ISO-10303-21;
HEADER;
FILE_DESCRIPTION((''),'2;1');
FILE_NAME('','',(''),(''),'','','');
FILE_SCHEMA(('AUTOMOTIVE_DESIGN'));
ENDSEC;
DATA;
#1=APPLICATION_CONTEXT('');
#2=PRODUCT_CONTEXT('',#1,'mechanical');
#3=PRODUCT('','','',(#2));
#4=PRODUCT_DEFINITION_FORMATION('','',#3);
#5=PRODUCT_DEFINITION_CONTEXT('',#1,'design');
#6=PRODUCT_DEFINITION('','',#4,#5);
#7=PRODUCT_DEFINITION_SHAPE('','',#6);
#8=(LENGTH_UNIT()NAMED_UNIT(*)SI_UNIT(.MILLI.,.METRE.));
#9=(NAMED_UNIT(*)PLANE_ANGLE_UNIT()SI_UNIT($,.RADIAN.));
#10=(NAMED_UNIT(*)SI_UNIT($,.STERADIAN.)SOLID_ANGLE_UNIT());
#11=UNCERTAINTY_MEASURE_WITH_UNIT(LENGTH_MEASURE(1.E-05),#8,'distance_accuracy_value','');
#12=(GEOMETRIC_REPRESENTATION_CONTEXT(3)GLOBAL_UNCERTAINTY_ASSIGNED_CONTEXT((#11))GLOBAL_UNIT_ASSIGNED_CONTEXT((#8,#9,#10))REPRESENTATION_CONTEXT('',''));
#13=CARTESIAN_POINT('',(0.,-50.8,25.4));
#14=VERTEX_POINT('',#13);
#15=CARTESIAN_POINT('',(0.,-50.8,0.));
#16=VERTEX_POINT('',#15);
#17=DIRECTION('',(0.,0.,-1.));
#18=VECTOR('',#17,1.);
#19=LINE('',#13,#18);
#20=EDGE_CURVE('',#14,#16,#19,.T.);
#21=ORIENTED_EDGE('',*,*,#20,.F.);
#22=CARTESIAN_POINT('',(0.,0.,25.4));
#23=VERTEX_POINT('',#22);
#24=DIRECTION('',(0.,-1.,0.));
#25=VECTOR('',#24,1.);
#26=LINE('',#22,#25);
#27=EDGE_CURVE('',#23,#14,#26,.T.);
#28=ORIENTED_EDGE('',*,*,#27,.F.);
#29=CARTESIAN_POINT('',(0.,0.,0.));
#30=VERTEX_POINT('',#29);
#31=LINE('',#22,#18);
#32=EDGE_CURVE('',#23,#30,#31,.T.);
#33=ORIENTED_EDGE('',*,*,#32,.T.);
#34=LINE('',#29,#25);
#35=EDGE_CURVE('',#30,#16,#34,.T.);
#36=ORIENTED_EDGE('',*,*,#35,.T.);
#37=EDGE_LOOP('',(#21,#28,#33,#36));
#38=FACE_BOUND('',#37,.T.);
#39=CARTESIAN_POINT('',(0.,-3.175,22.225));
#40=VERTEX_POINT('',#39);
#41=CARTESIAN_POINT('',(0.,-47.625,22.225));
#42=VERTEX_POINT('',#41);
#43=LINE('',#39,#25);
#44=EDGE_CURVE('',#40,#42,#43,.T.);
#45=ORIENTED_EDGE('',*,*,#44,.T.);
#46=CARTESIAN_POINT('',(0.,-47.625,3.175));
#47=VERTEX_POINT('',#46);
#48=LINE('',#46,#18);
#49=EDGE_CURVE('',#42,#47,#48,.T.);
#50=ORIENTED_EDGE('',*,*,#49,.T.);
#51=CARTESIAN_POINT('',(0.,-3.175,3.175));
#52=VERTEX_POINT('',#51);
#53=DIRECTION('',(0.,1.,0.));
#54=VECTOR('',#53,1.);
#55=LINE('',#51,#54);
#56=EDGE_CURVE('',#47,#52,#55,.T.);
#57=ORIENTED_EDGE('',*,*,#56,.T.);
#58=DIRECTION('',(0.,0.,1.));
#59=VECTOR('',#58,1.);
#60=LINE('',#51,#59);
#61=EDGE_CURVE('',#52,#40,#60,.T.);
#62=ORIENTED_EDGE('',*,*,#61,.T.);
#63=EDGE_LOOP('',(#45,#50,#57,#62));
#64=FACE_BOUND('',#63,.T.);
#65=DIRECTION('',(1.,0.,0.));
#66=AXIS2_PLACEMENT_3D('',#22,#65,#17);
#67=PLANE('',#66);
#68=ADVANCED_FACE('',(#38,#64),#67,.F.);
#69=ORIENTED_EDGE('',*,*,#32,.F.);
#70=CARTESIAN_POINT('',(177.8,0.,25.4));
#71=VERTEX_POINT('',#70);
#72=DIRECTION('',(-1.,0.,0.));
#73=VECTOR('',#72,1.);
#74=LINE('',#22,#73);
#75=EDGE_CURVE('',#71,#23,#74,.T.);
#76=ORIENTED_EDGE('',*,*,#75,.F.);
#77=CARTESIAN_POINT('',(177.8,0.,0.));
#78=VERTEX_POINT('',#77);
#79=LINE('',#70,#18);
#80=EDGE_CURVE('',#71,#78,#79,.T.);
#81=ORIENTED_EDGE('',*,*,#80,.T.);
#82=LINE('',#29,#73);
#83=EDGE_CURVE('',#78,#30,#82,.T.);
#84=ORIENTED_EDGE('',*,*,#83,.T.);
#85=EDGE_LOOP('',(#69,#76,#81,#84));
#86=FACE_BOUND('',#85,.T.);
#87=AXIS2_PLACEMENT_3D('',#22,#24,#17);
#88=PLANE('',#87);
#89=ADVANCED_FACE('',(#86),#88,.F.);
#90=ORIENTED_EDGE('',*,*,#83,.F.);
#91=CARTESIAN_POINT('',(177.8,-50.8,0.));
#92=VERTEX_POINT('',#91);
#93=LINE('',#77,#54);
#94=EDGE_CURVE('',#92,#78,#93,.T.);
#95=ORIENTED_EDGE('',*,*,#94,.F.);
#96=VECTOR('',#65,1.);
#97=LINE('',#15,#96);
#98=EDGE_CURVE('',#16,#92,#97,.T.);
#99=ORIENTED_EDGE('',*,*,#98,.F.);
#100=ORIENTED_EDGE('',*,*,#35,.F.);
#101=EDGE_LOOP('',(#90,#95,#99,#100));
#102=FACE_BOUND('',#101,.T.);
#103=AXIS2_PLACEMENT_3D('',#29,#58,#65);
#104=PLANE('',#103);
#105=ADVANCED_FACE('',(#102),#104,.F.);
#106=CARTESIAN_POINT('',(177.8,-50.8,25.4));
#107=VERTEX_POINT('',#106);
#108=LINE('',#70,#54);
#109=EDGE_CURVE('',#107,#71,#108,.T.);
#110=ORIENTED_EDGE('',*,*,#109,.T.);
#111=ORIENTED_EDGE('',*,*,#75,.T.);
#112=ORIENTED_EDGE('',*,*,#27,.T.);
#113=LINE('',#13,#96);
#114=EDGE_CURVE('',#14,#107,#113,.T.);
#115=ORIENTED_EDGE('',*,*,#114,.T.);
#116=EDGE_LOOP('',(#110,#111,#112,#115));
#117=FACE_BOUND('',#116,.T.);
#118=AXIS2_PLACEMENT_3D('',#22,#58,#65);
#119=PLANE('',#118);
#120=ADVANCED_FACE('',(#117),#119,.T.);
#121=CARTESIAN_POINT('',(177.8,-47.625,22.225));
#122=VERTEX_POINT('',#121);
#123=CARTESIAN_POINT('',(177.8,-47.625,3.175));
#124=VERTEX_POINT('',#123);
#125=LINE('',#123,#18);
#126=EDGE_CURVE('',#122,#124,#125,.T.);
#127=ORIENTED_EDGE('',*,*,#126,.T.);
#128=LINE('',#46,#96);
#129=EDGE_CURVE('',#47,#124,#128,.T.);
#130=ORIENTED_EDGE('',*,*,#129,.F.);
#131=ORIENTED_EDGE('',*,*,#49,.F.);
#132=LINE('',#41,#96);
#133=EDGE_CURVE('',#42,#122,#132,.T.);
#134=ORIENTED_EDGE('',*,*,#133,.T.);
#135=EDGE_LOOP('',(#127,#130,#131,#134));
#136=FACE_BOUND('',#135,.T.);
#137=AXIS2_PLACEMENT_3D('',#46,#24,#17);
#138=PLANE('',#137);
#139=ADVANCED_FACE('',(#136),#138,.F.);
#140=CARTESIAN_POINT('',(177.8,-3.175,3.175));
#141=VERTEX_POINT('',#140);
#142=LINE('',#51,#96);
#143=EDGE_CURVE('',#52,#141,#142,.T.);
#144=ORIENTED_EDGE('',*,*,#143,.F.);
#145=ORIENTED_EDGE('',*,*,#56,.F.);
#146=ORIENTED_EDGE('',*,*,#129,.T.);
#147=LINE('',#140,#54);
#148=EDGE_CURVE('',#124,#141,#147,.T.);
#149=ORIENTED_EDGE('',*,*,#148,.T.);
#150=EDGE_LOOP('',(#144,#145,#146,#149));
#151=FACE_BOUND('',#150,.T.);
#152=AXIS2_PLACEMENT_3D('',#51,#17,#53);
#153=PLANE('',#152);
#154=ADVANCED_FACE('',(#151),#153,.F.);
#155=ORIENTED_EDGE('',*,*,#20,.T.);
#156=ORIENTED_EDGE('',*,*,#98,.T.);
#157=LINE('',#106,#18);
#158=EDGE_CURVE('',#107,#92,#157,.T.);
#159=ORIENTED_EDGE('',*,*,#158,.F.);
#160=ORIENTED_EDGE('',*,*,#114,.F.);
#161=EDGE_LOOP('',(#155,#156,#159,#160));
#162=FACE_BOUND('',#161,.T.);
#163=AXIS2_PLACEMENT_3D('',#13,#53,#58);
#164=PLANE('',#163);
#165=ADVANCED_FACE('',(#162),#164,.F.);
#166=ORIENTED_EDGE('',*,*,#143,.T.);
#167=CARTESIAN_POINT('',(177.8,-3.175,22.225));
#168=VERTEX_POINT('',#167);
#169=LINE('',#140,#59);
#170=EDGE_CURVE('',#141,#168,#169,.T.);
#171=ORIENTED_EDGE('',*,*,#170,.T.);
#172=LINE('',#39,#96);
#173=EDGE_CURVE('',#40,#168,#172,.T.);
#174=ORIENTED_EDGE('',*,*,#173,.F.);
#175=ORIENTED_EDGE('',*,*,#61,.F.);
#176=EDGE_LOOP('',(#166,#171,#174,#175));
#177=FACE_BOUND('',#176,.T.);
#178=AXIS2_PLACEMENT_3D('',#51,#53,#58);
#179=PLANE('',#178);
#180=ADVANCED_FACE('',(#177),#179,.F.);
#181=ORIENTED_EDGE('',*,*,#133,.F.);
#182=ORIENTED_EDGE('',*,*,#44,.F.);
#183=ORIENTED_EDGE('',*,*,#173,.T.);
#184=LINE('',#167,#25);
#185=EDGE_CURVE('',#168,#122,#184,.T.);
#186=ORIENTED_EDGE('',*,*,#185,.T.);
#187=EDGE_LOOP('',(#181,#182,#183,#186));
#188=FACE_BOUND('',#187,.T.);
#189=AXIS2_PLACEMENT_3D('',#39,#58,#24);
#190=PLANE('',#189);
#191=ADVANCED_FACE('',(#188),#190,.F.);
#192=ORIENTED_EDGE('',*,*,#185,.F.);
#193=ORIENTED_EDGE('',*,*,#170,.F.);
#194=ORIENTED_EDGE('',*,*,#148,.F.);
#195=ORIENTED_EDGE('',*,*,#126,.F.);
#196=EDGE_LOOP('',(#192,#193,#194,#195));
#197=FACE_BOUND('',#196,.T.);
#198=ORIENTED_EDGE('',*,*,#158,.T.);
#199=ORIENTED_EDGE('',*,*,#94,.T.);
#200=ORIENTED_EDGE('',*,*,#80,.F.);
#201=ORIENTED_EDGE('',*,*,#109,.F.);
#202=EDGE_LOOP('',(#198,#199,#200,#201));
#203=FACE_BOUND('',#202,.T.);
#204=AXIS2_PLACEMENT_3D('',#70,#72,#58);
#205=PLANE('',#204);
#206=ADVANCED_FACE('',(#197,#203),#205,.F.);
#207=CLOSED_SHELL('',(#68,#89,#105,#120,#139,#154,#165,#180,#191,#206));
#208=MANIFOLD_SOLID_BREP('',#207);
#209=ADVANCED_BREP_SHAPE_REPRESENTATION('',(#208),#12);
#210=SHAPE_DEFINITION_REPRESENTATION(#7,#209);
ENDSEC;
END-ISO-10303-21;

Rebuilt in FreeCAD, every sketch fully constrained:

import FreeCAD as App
import Part
import Sketcher

V = App.Vector
Q = App.Units.Quantity

doc = App.newDocument("Part")
params = doc.addObject("Spreadsheet::Sheet", "Params")
for row, (alias, value) in enumerate([
    ("sketch1_width", "7 in"),
    ("sketch1_height", "2 in"),
    ("pad1_length", "1 in"),
    ("sketch2_width", "1.75 in"),
    ("sketch2_height", "0.75 in"),
], start=1):
    params.set(f"A{row}", alias)
    params.set(f"B{row}", "=" + value)
    params.setAlias(f"B{row}", alias)

body = doc.addObject("PartDesign::Body", "Body")

sketch1 = doc.addObject("Sketcher::SketchObject", "Sketch")
body.addObject(sketch1)
sketch1.AttachmentSupport = (doc.XY_Plane, [""])
sketch1.MapMode = "FlatFace"
sketch1.addGeometry(Part.LineSegment(V(0, 0, 0), V(0, -51, 0)), False)
sketch1.addGeometry(Part.LineSegment(V(0, -51, 0), V(178, -51, 0)), False)
sketch1.addGeometry(Part.LineSegment(V(178, -51, 0), V(178, 0, 0)), False)
sketch1.addGeometry(Part.LineSegment(V(178, 0, 0), V(0, 0, 0)), False)
sketch1.addConstraint(Sketcher.Constraint("Coincident", 0, 2, 1, 1))
sketch1.addConstraint(Sketcher.Constraint("Coincident", 1, 2, 2, 1))
sketch1.addConstraint(Sketcher.Constraint("Coincident", 2, 2, 3, 1))
sketch1.addConstraint(Sketcher.Constraint("Coincident", 3, 2, 0, 1))
sketch1.addConstraint(Sketcher.Constraint("Vertical", 0))
sketch1.addConstraint(Sketcher.Constraint("Horizontal", 1))
sketch1.addConstraint(Sketcher.Constraint("Vertical", 2))
sketch1.addConstraint(Sketcher.Constraint("Horizontal", 3))
sketch1.addConstraint(Sketcher.Constraint("Coincident", 3, 2, -1, 1))
sketch1.addConstraint(Sketcher.Constraint("DistanceX", 1, 1, 1, 2, Q("7 in")))
sketch1.addConstraint(Sketcher.Constraint("DistanceY", 0, 2, 0, 1, Q("2 in")))
sketch1.setExpression("Constraints[9]", "Params.sketch1_width")
sketch1.setExpression("Constraints[10]", "Params.sketch1_height")
pad1 = doc.addObject("PartDesign::Pad", "Pad")
body.addObject(pad1)
pad1.Profile = sketch1
pad1.setExpression("Length", "Params.pad1_length")

sketch2 = doc.addObject("Sketcher::SketchObject", "Sketch001")
body.addObject(sketch2)
sketch2.AttachmentSupport = (doc.YZ_Plane, [""])
sketch2.MapMode = "FlatFace"
sketch2.AttachmentOffset = App.Placement(V(0, 0, 7 * 25.4), App.Rotation())
sketch2.addGeometry(Part.LineSegment(V(-3, 22, 0), V(-48, 22, 0)), False)
sketch2.addGeometry(Part.LineSegment(V(-48, 22, 0), V(-48, 3, 0)), False)
sketch2.addGeometry(Part.LineSegment(V(-48, 3, 0), V(-3, 3, 0)), False)
sketch2.addGeometry(Part.LineSegment(V(-3, 3, 0), V(-3, 22, 0)), False)
sketch2.addConstraint(Sketcher.Constraint("Coincident", 0, 2, 1, 1))
sketch2.addConstraint(Sketcher.Constraint("Coincident", 1, 2, 2, 1))
sketch2.addConstraint(Sketcher.Constraint("Coincident", 2, 2, 3, 1))
sketch2.addConstraint(Sketcher.Constraint("Coincident", 3, 2, 0, 1))
sketch2.addConstraint(Sketcher.Constraint("Horizontal", 0))
sketch2.addConstraint(Sketcher.Constraint("Vertical", 1))
sketch2.addConstraint(Sketcher.Constraint("Horizontal", 2))
sketch2.addConstraint(Sketcher.Constraint("Vertical", 3))
sketch2.addConstraint(Sketcher.Constraint("DistanceX", 0, 2, 0, 1, Q("1.75 in")))
sketch2.addConstraint(Sketcher.Constraint("DistanceY", 1, 2, 1, 1, Q("0.75 in")))
sketch2.addConstraint(Sketcher.Constraint("DistanceX", 0, 2, -1, 1, Q("1.875 in")))
sketch2.addConstraint(Sketcher.Constraint("DistanceY", -1, 1, 0, 2, Q("0.875 in")))
sketch2.setExpression("Constraints[8]", "Params.sketch2_width")
sketch2.setExpression("Constraints[9]", "Params.sketch2_height")
pocket1 = doc.addObject("PartDesign::Pocket", "Pocket")
body.addObject(pocket1)
pocket1.Profile = sketch2
pocket1.Type = "ThroughAll"

doc.recompute()
